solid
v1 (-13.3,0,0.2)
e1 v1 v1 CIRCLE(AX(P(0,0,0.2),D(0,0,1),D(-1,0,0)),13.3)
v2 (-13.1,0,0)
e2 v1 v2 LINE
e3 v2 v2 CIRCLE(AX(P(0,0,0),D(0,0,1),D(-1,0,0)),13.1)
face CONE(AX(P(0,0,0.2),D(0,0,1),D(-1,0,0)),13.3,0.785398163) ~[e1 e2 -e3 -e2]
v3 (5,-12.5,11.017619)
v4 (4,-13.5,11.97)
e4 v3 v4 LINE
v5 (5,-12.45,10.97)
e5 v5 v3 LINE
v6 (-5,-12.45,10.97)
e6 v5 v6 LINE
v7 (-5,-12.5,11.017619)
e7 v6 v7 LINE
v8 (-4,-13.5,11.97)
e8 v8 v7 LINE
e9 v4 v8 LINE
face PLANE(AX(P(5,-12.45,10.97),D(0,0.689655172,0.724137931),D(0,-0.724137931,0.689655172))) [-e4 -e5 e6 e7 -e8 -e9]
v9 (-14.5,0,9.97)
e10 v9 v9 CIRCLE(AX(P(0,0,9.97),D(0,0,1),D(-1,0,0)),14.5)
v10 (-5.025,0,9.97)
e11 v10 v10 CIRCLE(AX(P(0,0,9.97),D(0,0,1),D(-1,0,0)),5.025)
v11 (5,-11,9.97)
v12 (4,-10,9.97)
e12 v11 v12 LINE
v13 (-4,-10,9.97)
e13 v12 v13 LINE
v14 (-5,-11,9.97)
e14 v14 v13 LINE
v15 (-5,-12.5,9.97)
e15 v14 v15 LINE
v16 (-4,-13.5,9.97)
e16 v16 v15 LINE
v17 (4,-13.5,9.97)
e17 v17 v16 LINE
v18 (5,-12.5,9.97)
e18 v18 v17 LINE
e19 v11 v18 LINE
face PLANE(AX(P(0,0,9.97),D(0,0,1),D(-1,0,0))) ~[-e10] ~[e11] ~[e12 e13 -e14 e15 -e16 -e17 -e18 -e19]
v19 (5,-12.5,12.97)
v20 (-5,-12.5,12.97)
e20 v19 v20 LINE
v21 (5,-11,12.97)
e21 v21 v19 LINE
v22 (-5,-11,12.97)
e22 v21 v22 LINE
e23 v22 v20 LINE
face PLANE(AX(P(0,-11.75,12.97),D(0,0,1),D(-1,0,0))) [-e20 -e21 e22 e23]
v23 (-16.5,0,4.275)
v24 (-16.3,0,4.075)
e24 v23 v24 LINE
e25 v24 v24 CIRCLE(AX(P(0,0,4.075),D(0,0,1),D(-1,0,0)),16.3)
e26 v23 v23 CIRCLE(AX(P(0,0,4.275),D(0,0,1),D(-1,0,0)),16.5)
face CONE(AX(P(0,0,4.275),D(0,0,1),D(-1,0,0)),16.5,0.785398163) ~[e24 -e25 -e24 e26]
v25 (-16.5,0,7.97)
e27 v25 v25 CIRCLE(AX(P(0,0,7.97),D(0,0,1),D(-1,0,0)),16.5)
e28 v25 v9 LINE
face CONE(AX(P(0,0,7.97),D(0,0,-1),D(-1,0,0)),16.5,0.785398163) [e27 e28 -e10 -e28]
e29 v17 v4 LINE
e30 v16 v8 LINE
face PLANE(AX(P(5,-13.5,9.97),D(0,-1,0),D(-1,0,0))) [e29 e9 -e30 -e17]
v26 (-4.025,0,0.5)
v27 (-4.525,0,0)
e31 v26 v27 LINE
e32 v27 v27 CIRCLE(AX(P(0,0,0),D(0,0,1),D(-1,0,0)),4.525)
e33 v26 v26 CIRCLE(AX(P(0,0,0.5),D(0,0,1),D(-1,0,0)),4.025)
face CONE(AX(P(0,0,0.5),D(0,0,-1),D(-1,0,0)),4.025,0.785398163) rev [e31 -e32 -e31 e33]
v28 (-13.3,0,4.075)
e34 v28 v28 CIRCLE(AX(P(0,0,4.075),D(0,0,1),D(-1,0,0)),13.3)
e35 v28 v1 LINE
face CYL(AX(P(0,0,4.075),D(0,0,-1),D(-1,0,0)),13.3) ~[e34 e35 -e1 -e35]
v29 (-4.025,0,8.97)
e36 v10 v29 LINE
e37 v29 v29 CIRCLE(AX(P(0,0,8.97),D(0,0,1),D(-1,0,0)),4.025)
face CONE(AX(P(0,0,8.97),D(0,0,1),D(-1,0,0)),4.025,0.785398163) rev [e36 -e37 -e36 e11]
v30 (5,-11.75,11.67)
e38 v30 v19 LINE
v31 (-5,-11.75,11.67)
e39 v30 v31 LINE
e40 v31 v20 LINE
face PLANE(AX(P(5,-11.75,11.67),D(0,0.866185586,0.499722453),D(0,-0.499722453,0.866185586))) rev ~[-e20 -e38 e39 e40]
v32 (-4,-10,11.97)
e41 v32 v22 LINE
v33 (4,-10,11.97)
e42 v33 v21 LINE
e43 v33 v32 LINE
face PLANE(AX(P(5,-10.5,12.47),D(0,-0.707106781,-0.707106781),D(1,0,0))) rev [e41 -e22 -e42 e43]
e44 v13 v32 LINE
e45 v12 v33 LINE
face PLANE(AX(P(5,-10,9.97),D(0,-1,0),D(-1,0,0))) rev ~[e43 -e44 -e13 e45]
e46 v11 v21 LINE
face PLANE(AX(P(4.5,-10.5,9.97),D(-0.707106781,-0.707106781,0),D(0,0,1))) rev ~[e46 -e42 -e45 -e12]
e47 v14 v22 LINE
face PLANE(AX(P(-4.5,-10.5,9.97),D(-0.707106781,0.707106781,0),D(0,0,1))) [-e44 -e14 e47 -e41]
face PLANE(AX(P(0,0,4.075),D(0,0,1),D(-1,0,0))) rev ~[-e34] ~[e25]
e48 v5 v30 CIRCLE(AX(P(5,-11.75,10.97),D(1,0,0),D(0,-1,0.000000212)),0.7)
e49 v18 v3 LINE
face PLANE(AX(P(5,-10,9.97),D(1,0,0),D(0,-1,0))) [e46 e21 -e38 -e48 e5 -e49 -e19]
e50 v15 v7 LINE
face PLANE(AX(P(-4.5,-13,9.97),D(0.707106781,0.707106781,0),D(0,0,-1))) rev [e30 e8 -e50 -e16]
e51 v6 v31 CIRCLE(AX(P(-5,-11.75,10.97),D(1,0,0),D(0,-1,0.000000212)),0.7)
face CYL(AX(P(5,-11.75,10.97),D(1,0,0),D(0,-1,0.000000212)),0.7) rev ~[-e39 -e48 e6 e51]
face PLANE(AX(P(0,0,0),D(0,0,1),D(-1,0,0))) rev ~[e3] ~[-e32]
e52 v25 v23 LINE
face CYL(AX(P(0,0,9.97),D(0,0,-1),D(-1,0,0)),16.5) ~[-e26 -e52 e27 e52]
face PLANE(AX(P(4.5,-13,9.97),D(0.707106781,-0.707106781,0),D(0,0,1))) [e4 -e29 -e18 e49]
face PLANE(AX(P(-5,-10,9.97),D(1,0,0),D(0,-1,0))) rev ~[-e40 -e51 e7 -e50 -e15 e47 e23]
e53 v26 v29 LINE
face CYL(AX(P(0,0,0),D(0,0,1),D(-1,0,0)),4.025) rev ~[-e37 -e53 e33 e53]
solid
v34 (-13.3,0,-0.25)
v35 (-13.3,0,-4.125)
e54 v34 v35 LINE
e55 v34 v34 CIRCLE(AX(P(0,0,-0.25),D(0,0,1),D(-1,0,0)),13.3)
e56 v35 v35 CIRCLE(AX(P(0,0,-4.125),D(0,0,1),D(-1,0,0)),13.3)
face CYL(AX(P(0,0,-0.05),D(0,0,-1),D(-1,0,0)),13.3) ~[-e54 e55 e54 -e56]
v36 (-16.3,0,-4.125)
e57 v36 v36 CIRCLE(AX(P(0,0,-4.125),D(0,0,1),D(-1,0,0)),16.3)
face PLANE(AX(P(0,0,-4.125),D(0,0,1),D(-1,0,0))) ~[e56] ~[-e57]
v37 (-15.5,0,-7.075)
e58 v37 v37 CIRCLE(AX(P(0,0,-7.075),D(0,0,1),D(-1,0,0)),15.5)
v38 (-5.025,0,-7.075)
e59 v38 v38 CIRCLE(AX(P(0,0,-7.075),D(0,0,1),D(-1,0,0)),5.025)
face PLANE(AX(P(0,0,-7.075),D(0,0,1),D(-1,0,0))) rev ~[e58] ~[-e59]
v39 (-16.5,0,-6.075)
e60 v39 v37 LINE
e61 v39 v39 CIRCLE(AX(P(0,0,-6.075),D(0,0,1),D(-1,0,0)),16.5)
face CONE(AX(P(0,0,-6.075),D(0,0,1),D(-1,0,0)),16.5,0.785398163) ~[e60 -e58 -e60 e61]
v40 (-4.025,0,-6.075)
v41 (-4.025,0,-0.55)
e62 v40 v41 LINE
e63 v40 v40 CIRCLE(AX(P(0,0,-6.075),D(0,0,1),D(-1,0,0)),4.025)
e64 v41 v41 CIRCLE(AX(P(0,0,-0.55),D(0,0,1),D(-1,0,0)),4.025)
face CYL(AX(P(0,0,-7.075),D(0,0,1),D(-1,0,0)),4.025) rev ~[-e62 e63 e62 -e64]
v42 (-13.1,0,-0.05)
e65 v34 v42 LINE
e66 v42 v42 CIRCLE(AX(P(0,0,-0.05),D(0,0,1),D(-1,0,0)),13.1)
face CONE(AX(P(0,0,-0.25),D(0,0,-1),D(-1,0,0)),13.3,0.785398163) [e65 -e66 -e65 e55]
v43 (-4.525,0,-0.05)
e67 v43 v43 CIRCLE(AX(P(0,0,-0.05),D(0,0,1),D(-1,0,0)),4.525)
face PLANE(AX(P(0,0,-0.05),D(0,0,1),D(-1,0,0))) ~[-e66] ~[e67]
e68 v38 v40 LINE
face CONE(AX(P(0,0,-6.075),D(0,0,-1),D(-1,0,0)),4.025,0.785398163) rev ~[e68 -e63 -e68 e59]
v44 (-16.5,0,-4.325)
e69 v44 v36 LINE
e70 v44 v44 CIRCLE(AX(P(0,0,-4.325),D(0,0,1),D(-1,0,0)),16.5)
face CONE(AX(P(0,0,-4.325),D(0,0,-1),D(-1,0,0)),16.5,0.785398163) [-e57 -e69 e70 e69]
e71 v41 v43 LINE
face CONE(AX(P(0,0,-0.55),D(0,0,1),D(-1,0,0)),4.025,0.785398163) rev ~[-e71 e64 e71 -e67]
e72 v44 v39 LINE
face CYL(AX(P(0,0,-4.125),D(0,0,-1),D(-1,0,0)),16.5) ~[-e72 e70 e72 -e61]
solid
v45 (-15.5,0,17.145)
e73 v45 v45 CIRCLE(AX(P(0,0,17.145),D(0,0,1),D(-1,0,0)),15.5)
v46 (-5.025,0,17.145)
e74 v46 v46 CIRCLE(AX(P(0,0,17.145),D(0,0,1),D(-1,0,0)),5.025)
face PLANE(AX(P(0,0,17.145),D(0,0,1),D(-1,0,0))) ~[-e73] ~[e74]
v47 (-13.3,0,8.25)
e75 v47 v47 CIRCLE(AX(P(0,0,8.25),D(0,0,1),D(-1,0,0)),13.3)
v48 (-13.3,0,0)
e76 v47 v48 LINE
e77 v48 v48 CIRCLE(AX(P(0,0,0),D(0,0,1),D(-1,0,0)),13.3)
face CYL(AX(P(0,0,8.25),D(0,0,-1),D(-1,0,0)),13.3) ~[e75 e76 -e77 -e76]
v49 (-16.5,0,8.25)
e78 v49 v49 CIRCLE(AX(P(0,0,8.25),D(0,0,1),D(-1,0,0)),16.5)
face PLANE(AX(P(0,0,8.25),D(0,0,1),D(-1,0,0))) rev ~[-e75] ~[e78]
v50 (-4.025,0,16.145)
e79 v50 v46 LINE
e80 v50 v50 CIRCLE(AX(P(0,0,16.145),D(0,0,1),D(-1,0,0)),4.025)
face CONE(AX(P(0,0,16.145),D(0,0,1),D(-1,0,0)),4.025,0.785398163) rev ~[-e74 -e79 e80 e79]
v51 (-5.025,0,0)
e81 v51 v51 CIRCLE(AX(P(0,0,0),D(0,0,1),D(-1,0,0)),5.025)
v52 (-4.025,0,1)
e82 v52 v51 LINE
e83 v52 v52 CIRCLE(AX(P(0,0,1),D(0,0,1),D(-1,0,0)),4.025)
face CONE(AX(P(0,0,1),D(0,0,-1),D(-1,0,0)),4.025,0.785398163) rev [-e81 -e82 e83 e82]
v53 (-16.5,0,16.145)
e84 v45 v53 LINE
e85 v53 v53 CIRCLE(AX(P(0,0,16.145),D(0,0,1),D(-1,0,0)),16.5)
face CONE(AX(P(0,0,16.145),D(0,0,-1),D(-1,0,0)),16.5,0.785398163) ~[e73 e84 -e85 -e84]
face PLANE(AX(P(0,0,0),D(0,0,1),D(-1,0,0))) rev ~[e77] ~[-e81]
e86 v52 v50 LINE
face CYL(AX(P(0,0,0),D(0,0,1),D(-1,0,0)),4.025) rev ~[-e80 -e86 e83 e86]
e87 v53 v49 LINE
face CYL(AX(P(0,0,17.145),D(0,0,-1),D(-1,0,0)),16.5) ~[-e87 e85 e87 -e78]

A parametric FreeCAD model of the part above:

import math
import FreeCAD as App
import Part
import Sketcher
Q = App.Units.Quantity


def edges_at(feature, points):
    """Names of the edges that pass closest to the given points."""
    edges = feature.Shape.Edges
    near = lambda p: min(range(len(edges)), key=lambda i: edges[i].distToShape(Part.Vertex(*p))[0])
    return sorted({f"Edge{near(p) + 1}" for p in points})


def add_polygon(sketch, points):
    """Adds a closed chain of lines whose ends are joined by coincident constraints."""
    first, n = sketch.GeometryCount, len(points)
    for a, b in zip(points, points[1:] + points[:1]):
        sketch.addGeometry(Part.LineSegment(App.Vector(*a, 0), App.Vector(*b, 0)), False)
    for i in range(n):
        sketch.addConstraint(Sketcher.Constraint("Coincident", first + i, 2, first + (i + 1) % n, 1))

doc = App.newDocument("Part")
body = doc.addObject("PartDesign::Body", "Body")

sketch1 = body.newObject("Sketcher::SketchObject", "Sketch")
sketch1.AttachmentSupport = (doc.getObject("XZ_Plane"), [""])
sketch1.MapMode = "FlatFace"
add_polygon(sketch1, [(-4.025, 0), (-4.025, 17.145), (-16.5, 17.145), (-16.5, 8.25), (-13.3, 8.25), (-13.3, 0)])
sketch1.addConstraint(Sketcher.Constraint("Vertical", 0))
sketch1.addConstraint(Sketcher.Constraint("Horizontal", 1))
sketch1.addConstraint(Sketcher.Constraint("Vertical", 2))
sketch1.addConstraint(Sketcher.Constraint("Horizontal", 3))
sketch1.addConstraint(Sketcher.Constraint("Vertical", 4))
sketch1.addConstraint(Sketcher.Constraint("Horizontal", 5))
sketch1.addConstraint(Sketcher.Constraint("PointOnObject", 4, 2, -1))
sketch1.addConstraint(Sketcher.Constraint("DistanceX", 3, 1, 3, 2, Q("3.2 mm")))
sketch1.addConstraint(Sketcher.Constraint("DistanceY", 4, 2, 4, 1, Q("8.25 mm")))
sketch1.addConstraint(Sketcher.Constraint("DistanceX", 1, 2, -1, 1, Q("16.5 mm")))
sketch1.addConstraint(Sketcher.Constraint("DistanceX", 1, 2, 1, 1, Q("12.475 mm")))
sketch1.addConstraint(Sketcher.Constraint("DistanceY", 0, 1, 0, 2, Q("17.145 mm")))
revolution = body.newObject("PartDesign::Revolution", "Revolution")
revolution.Profile = sketch1
revolution.ReferenceAxis = (sketch1, ["V_Axis"])
revolution.Angle = 360
doc.recompute()

chamfer = body.newObject("PartDesign::Chamfer", "Chamfer")
chamfer.Base = (revolution, edges_at(revolution, [(16.5, 0, 17.145), (4.025, 0, 17.145), (4.025, 0, 0)]))
chamfer.Size = 1
body2 = doc.addObject("PartDesign::Body", "Body001")

sketch2 = body2.newObject("Sketcher::SketchObject", "Sketch001")
sketch2.AttachmentSupport = (doc.getObject("XZ_Plane001"), [""])
sketch2.MapMode = "FlatFace"
add_polygon(sketch2, [(-4.025, 0), (-4.025, 9.97), (-16.5, 9.97), (-16.5, 4.075), (-13.3, 4.075), (-13.3, 0)])
sketch2.addConstraint(Sketcher.Constraint("Vertical", 0))
sketch2.addConstraint(Sketcher.Constraint("Horizontal", 1))
sketch2.addConstraint(Sketcher.Constraint("Vertical", 2))
sketch2.addConstraint(Sketcher.Constraint("Horizontal", 3))
sketch2.addConstraint(Sketcher.Constraint("Vertical", 4))
sketch2.addConstraint(Sketcher.Constraint("Horizontal", 5))
sketch2.addConstraint(Sketcher.Constraint("PointOnObject", 4, 2, -1))
sketch2.addConstraint(Sketcher.Constraint("DistanceX", 3, 1, 3, 2, Q("3.2 mm")))
sketch2.addConstraint(Sketcher.Constraint("DistanceY", 0, 1, 0, 2, Q("9.97 mm")))
sketch2.addConstraint(Sketcher.Constraint("DistanceX", 1, 2, -1, 1, Q("16.5 mm")))
sketch2.addConstraint(Sketcher.Constraint("DistanceX", 1, 2, 1, 1, Q("12.475 mm")))
sketch2.addConstraint(Sketcher.Constraint("DistanceY", 2, 2, 2, 1, Q("5.895 mm")))
revolution2 = body2.newObject("PartDesign::Revolution", "Revolution001")
revolution2.Profile = sketch2
revolution2.ReferenceAxis = (sketch2, ["V_Axis"])
revolution2.Angle = 360
doc.recompute()

chamfer2 = body2.newObject("PartDesign::Chamfer", "Chamfer001")
chamfer2.Base = (revolution2, edges_at(revolution2, [(13.3, 0, 0), (16.5, 0, 4.075)]))
chamfer2.Size = 0.2
doc.recompute()

chamfer3 = body2.newObject("PartDesign::Chamfer", "Chamfer002")
chamfer3.Base = (chamfer2, edges_at(chamfer2, [(16.5, 0, 9.97)]))
chamfer3.Size = 2

sketch3 = body2.newObject("Sketcher::SketchObject", "Sketch002")
sketch3.AttachmentSupport = (doc.getObject("XY_Plane001"), [""])
sketch3.MapMode = "FlatFace"
sketch3.AttachmentOffset = App.Placement(App.Vector(0, 0, 9.97), App.Rotation())
add_polygon(sketch3, [(5, -13.5), (5, -10), (-5, -10), (-5, -13.5)])
sketch3.addConstraint(Sketcher.Constraint("Vertical", 0))
sketch3.addConstraint(Sketcher.Constraint("Horizontal", 1))
sketch3.addConstraint(Sketcher.Constraint("Vertical", 2))
sketch3.addConstraint(Sketcher.Constraint("Horizontal", 3))
sketch3.addConstraint(Sketcher.Constraint("DistanceX", 1, 2, 1, 1, Q("10 mm")))
sketch3.addConstraint(Sketcher.Constraint("DistanceY", 0, 1, 0, 2, Q("3.5 mm")))
sketch3.addConstraint(Sketcher.Constraint("DistanceX", -1, 1, 0, 2, Q("5 mm")))
sketch3.addConstraint(Sketcher.Constraint("DistanceY", 0, 2, -1, 1, Q("10 mm")))
pad1 = body2.newObject("PartDesign::Pad", "Pad")
pad1.Profile = sketch3
pad1.Length = 3

sketch4 = body2.newObject("Sketcher::SketchObject", "Sketch003")
sketch4.AttachmentSupport = (doc.getObject("YZ_Plane001"), [""])
sketch4.MapMode = "FlatFace"
sketch4.AttachmentOffset = App.Placement(App.Vector(0, 0, 5), App.Rotation())
sketch4.addGeometry(Part.ArcOfCircle(Part.Circle(App.Vector(-11.75, 10.97, 0), App.Vector(0, 0, 1), 0.7), math.radians(179.999988), math.radians(450.000012)), False)
sketch4.addGeometry(Part.LineSegment(App.Vector(-11.75, 11.67, 0), App.Vector(-12.5, 12.97, 0)), False)
sketch4.addGeometry(Part.LineSegment(App.Vector(-12.5, 12.97, 0), App.Vector(-13.5, 12.97, 0)), False)
sketch4.addGeometry(Part.LineSegment(App.Vector(-13.5, 12.97, 0), App.Vector(-13.5, 11.97, 0)), False)
sketch4.addGeometry(Part.LineSegment(App.Vector(-13.5, 11.97, 0), App.Vector(-12.45, 10.97, 0)), False)
sketch4.addConstraint(Sketcher.Constraint("Coincident", 0, 2, 1, 1))
sketch4.addConstraint(Sketcher.Constraint("Coincident", 1, 2, 2, 1))
sketch4.addConstraint(Sketcher.Constraint("Coincident", 2, 2, 3, 1))
sketch4.addConstraint(Sketcher.Constraint("Coincident", 3, 2, 4, 1))
sketch4.addConstraint(Sketcher.Constraint("Coincident", 4, 2, 0, 1))
sketch4.addConstraint(Sketcher.Constraint("Horizontal", 2))
sketch4.addConstraint(Sketcher.Constraint("Vertical", 3))
sketch4.addConstraint(Sketcher.Constraint("Horizontal", 0, 3, 4, 2))
sketch4.addConstraint(Sketcher.Constraint("Equal", 2, 3))
sketch4.addConstraint(Sketcher.Constraint("Radius", 0, Q("0.7 mm")))
sketch4.addConstraint(Sketcher.Constraint("DistanceX", 2, 2, 2, 1, Q("1 mm")))
sketch4.addConstraint(Sketcher.Constraint("DistanceY", 0, 3, 1, 2, Q("2 mm")))
sketch4.addConstraint(Sketcher.Constraint("DistanceX", 1, 2, -1, 1, Q("12.5 mm")))
sketch4.addConstraint(Sketcher.Constraint("DistanceX", 4, 2, 0, 2, Q("0.7 mm")))
sketch4.addConstraint(Sketcher.Constraint("Distance", 4, Q("1.45 mm")))
sketch4.addConstraint(Sketcher.Constraint("DistanceY", -1, 1, 0, 3, Q("10.97 mm")))
pocket1 = body2.newObject("PartDesign::Pocket", "Pocket")
pocket1.Profile = sketch4
pocket1.Length = 10
doc.recompute()

chamfer4 = body2.newObject("PartDesign::Chamfer", "Chamfer003")
chamfer4.Base = (pocket1, edges_at(pocket1, [
    (0, -10, 12.97),
    (5, -10, 11.47),
    (-5, -10, 11.47),
    (5, -13.5, 10.97),
    (-5, -13.5, 10.97),
]))
chamfer4.Size = 1
doc.recompute()

chamfer5 = body2.newObject("PartDesign::Chamfer", "Chamfer004")
chamfer5.Base = (chamfer4, edges_at(chamfer4, [(4.025, 0, 9.97)]))
chamfer5.Size = 1
doc.recompute()

chamfer6 = body2.newObject("PartDesign::Chamfer", "Chamfer005")
chamfer6.Base = (chamfer5, edges_at(chamfer5, [(4.025, 0, 0)]))
chamfer6.Size = 0.5
body3 = doc.addObject("PartDesign::Body", "Body002")

sketch5 = body3.newObject("Sketcher::SketchObject", "Sketch004")
sketch5.AttachmentSupport = (doc.getObject("XZ_Plane002"), [""])
sketch5.MapMode = "FlatFace"
add_polygon(sketch5, [(-4.025, -0.05), (-13.3, -0.05), (-13.3, -4.125), (-16.5, -4.125), (-16.5, -7.075), (-4.025, -7.075)])
sketch5.addConstraint(Sketcher.Constraint("Horizontal", 0))
sketch5.addConstraint(Sketcher.Constraint("Vertical", 1))
sketch5.addConstraint(Sketcher.Constraint("Horizontal", 2))
sketch5.addConstraint(Sketcher.Constraint("Vertical", 3))
sketch5.addConstraint(Sketcher.Constraint("Horizontal", 4))
sketch5.addConstraint(Sketcher.Constraint("Vertical", 5))
sketch5.addConstraint(Sketcher.Constraint("DistanceX", 2, 2, 2, 1, Q("3.2 mm")))
sketch5.addConstraint(Sketcher.Constraint("DistanceY", 3, 2, 3, 1, Q("2.95 mm")))
sketch5.addConstraint(Sketcher.Constraint("DistanceX", 0, 2, -1, 1, Q("13.3 mm")))
sketch5.addConstraint(Sketcher.Constraint("DistanceX", 0, 2, 0, 1, Q("9.275 mm")))
sketch5.addConstraint(Sketcher.Constraint("DistanceY", 1, 2, 1, 1, Q("4.075 mm")))
sketch5.addConstraint(Sketcher.Constraint("DistanceY", 0, 2, -1, 1, Q("0.05 mm")))
revolution3 = body3.newObject("PartDesign::Revolution", "Revolution002")
revolution3.Profile = sketch5
revolution3.ReferenceAxis = (sketch5, ["V_Axis"])
revolution3.Angle = 360
doc.recompute()

chamfer7 = body3.newObject("PartDesign::Chamfer", "Chamfer006")
chamfer7.Base = (revolution3, edges_at(revolution3, [(4.025, 0, -7.075), (16.5, 0, -7.075)]))
chamfer7.Size = 1
doc.recompute()

chamfer8 = body3.newObject("PartDesign::Chamfer", "Chamfer007")
chamfer8.Base = (chamfer7, edges_at(chamfer7, [(13.3, 0, -0.05), (16.5, 0, -4.125)]))
chamfer8.Size = 0.2
doc.recompute()

chamfer9 = body3.newObject("PartDesign::Chamfer", "Chamfer008")
chamfer9.Base = (chamfer8, edges_at(chamfer8, [(4.025, 0, -0.05)]))
chamfer9.Size = 0.5

doc.recompute()
